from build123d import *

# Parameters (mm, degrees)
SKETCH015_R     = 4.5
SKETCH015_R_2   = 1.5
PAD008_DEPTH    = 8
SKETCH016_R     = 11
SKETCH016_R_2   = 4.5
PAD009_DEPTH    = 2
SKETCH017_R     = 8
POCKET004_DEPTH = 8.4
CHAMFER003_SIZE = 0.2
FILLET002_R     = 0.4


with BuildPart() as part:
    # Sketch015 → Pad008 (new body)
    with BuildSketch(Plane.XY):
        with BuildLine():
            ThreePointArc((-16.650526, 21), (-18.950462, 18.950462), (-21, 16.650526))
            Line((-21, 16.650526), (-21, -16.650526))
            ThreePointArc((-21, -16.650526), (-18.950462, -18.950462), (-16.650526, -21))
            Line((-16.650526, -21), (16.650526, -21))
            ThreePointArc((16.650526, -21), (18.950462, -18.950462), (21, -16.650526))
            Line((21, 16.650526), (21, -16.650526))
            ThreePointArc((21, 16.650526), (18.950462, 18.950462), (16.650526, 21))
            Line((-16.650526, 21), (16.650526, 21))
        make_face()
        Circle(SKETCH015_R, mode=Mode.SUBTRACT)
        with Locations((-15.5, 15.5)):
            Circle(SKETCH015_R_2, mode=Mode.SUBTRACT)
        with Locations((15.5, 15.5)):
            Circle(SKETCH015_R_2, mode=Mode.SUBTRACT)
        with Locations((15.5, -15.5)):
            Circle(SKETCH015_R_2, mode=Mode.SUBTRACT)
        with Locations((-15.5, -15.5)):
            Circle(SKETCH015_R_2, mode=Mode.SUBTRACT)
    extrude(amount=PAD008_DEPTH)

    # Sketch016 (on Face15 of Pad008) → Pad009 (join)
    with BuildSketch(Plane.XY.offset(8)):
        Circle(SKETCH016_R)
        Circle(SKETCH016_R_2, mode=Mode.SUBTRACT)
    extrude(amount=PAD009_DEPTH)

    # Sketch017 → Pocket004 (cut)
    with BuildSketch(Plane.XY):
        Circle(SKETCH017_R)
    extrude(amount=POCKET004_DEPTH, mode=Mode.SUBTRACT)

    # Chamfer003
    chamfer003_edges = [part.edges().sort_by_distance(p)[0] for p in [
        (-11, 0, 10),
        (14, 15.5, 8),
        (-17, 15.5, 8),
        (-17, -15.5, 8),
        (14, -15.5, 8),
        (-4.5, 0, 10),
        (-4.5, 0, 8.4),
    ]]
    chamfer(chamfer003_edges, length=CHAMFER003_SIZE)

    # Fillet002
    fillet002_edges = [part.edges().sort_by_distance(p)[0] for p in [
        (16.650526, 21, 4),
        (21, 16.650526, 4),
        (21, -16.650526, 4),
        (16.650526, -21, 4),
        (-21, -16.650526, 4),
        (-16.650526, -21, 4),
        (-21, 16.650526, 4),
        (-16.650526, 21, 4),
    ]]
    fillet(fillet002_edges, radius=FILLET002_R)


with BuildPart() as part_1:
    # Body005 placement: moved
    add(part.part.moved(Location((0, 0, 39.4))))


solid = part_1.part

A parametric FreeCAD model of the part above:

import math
import FreeCAD as App
import Part
import Sketcher
Q = App.Units.Quantity


def edges_at(feature, points):
    """Names of the edges that pass closest to the given points."""
    edges = feature.Shape.Edges
    near = lambda p: min(range(len(edges)), key=lambda i: edges[i].distToShape(Part.Vertex(*p))[0])
    return sorted({f"Edge{near(p) + 1}" for p in points})

doc = App.newDocument("Part")
body = doc.addObject("PartDesign::Body", "Body")

sketch1 = body.newObject("Sketcher::SketchObject", "Sketch")
sketch1.AttachmentSupport = (doc.getObject("XY_Plane"), [""])
sketch1.MapMode = "FlatFace"
sketch1.addGeometry([
    Part.ArcOfCircle(Part.Circle(App.Vector(-0.000008, 0.000008, 0), App.Vector(0, 0, 1), 26.799989), math.radians(128.41027), math.radians(141.58973)),
    Part.LineSegment(App.Vector(-21, 16.650526, 0), App.Vector(-21, -16.650526, 0)),
    Part.ArcOfCircle(Part.Circle(App.Vector(-0.000008, -0.000008, 0), App.Vector(0, 0, 1), 26.799989), math.radians(-141.58973), math.radians(-128.41027)),
    Part.LineSegment(App.Vector(-16.650526, -21, 0), App.Vector(16.650526, -21, 0)),
    Part.ArcOfCircle(Part.Circle(App.Vector(0.000008, -0.000008, 0), App.Vector(0, 0, 1), 26.799989), math.radians(-51.58973), math.radians(-38.41027)),
    Part.LineSegment(App.Vector(21, -16.650526, 0), App.Vector(21, 16.650526, 0)),
    Part.ArcOfCircle(Part.Circle(App.Vector(0.000008, 0.000008, 0), App.Vector(0, 0, 1), 26.799989), math.radians(38.41027), math.radians(51.58973)),
    Part.LineSegment(App.Vector(16.650526, 21, 0), App.Vector(-16.650526, 21, 0)),
    Part.Circle(App.Vector(-15.5, -15.5, 0), App.Vector(0, 0, 1), 1.5),
    Part.Circle(App.Vector(15.5, -15.5, 0), App.Vector(0, 0, 1), 1.5),
    Part.Circle(App.Vector(-15.5, 15.5, 0), App.Vector(0, 0, 1), 1.5),
    Part.Circle(App.Vector(0, 0, 0), App.Vector(0, 0, 1), 4.5),
    Part.Circle(App.Vector(15.5, 15.5, 0), App.Vector(0, 0, 1), 1.5),
], False)
sketch1.addConstraint([
    Sketcher.Constraint("Coincident", 0, 2, 1, 1),
    Sketcher.Constraint("Coincident", 1, 2, 2, 1),
    Sketcher.Constraint("Coincident", 2, 2, 3, 1),
    Sketcher.Constraint("Coincident", 3, 2, 4, 1),
    Sketcher.Constraint("Coincident", 4, 2, 5, 1),
    Sketcher.Constraint("Coincident", 5, 2, 6, 1),
    Sketcher.Constraint("Coincident", 6, 2, 7, 1),
    Sketcher.Constraint("Coincident", 7, 2, 0, 1),
    Sketcher.Constraint("Vertical", 1),
    Sketcher.Constraint("Horizontal", 3),
    Sketcher.Constraint("Vertical", 5),
    Sketcher.Constraint("Horizontal", 7),
    Sketcher.Constraint("Coincident", 11, 3, -1, 1),
    Sketcher.Constraint("Equal", 0, 2),
    Sketcher.Constraint("Equal", 2, 4),
    Sketcher.Constraint("Equal", 4, 6),
    Sketcher.Constraint("Equal", 8, 9),
    Sketcher.Constraint("Equal", 9, 10),
    Sketcher.Constraint("Equal", 10, 12),
    Sketcher.Constraint("Symmetric", 0, 3, 4, 3, -1, 1),
    Sketcher.Constraint("Symmetric", 2, 3, 6, 3, -1, 1),
    Sketcher.Constraint("Symmetric", 9, 3, 10, 3, -1, 1),
    Sketcher.Constraint("Symmetric", 8, 3, 12, 3, -1, 1),
    Sketcher.Constraint("Symmetric", 2, 3, 4, 3, -2),
    Sketcher.Constraint("Symmetric", 8, 3, 9, 3, -2),
    Sketcher.Constraint("Horizontal", 1, 2, 4, 2),
    Sketcher.Constraint("Vertical", 3, 2, 6, 2),
    Sketcher.Constraint("Equal", 7, 1),
    Sketcher.Constraint("Diameter", 8, Q("3 mm")),
    Sketcher.Constraint("Diameter", 11, Q("9 mm")),
    Sketcher.Constraint("DistanceX", 0, 2, -1, 1, Q("21 mm")),
    Sketcher.Constraint("DistanceY", 2, 2, -1, 1, Q("21 mm")),
    Sketcher.Constraint("DistanceX", 8, 3, 9, 3, Q("31 mm")),
    Sketcher.Constraint("DistanceY", 8, 3, 10, 3, Q("31 mm")),
    Sketcher.Constraint("Radius", 0, Q("26.799989 mm")),
    Sketcher.Constraint("DistanceX", 3, 1, 3, 2, Q("33.301052 mm")),
])
pad1 = body.newObject("PartDesign::Pad", "Pad")
pad1.Profile = sketch1
pad1.Length = 8

sketch2 = body.newObject("Sketcher::SketchObject", "Sketch001")
sketch2.AttachmentSupport = (doc.getObject("XY_Plane"), [""])
sketch2.MapMode = "FlatFace"
sketch2.AttachmentOffset = App.Placement(App.Vector(0, 0, 8), App.Rotation())
sketch2.addGeometry([
    Part.Circle(App.Vector(0, 0, 0), App.Vector(0, 0, 1), 11),
    Part.Circle(App.Vector(0, 0, 0), App.Vector(0, 0, 1), 4.5),
], False)
sketch2.addConstraint([
    Sketcher.Constraint("Coincident", 0, 3, -1, 1),
    Sketcher.Constraint("Coincident", 1, 3, -1, 1),
    Sketcher.Constraint("Diameter", 0, Q("22 mm")),
    Sketcher.Constraint("Diameter", 1, Q("9 mm")),
])
pad2 = body.newObject("PartDesign::Pad", "Pad001")
pad2.Profile = sketch2
pad2.Length = 2

sketch3 = body.newObject("Sketcher::SketchObject", "Sketch002")
sketch3.AttachmentSupport = (doc.getObject("XY_Plane"), [""])
sketch3.MapMode = "FlatFace"
sketch3.addGeometry(Part.Circle(App.Vector(0, 0, 0), App.Vector(0, 0, 1), 8), False)
sketch3.addConstraint([
    Sketcher.Constraint("Coincident", 0, 3, -1, 1),
    Sketcher.Constraint("Diameter", 0, Q("16 mm")),
])
pocket1 = body.newObject("PartDesign::Pocket", "Pocket")
pocket1.Profile = sketch3
pocket1.Length = 8.4
pocket1.Reversed = True
doc.recompute()

chamfer = body.newObject("PartDesign::Chamfer", "Chamfer")
chamfer.Base = (pocket1, edges_at(pocket1, [
    (-11, 0, 10),
    (14, 15.5, 8),
    (-17, 15.5, 8),
    (-17, -15.5, 8),
    (14, -15.5, 8),
    (-4.5, 0, 10),
    (-4.5, 0, 8.4),
]))
chamfer.Size = 0.2
doc.recompute()

fillet = body.newObject("PartDesign::Fillet", "Fillet")
fillet.Base = (chamfer, edges_at(chamfer, [
    (16.651, 21, 4),
    (21, 16.651, 4),
    (21, -16.651, 4),
    (16.651, -21, 4),
    (-21, -16.651, 4),
    (-16.651, -21, 4),
    (-21, 16.651, 4),
    (-16.651, 21, 4),
]))
fillet.Radius = 0.4
body2 = doc.addObject("PartDesign::Body", "Body001")
doc.recompute()

body.Placement = App.Placement(App.Vector(0, 0, 39.4), App.Rotation(App.Vector(0, 0, 1), 0))
boolean = body2.newObject("PartDesign::Boolean", "Boolean")
boolean.Type = "Fuse"
boolean.addObjects([body])

doc.recompute()
